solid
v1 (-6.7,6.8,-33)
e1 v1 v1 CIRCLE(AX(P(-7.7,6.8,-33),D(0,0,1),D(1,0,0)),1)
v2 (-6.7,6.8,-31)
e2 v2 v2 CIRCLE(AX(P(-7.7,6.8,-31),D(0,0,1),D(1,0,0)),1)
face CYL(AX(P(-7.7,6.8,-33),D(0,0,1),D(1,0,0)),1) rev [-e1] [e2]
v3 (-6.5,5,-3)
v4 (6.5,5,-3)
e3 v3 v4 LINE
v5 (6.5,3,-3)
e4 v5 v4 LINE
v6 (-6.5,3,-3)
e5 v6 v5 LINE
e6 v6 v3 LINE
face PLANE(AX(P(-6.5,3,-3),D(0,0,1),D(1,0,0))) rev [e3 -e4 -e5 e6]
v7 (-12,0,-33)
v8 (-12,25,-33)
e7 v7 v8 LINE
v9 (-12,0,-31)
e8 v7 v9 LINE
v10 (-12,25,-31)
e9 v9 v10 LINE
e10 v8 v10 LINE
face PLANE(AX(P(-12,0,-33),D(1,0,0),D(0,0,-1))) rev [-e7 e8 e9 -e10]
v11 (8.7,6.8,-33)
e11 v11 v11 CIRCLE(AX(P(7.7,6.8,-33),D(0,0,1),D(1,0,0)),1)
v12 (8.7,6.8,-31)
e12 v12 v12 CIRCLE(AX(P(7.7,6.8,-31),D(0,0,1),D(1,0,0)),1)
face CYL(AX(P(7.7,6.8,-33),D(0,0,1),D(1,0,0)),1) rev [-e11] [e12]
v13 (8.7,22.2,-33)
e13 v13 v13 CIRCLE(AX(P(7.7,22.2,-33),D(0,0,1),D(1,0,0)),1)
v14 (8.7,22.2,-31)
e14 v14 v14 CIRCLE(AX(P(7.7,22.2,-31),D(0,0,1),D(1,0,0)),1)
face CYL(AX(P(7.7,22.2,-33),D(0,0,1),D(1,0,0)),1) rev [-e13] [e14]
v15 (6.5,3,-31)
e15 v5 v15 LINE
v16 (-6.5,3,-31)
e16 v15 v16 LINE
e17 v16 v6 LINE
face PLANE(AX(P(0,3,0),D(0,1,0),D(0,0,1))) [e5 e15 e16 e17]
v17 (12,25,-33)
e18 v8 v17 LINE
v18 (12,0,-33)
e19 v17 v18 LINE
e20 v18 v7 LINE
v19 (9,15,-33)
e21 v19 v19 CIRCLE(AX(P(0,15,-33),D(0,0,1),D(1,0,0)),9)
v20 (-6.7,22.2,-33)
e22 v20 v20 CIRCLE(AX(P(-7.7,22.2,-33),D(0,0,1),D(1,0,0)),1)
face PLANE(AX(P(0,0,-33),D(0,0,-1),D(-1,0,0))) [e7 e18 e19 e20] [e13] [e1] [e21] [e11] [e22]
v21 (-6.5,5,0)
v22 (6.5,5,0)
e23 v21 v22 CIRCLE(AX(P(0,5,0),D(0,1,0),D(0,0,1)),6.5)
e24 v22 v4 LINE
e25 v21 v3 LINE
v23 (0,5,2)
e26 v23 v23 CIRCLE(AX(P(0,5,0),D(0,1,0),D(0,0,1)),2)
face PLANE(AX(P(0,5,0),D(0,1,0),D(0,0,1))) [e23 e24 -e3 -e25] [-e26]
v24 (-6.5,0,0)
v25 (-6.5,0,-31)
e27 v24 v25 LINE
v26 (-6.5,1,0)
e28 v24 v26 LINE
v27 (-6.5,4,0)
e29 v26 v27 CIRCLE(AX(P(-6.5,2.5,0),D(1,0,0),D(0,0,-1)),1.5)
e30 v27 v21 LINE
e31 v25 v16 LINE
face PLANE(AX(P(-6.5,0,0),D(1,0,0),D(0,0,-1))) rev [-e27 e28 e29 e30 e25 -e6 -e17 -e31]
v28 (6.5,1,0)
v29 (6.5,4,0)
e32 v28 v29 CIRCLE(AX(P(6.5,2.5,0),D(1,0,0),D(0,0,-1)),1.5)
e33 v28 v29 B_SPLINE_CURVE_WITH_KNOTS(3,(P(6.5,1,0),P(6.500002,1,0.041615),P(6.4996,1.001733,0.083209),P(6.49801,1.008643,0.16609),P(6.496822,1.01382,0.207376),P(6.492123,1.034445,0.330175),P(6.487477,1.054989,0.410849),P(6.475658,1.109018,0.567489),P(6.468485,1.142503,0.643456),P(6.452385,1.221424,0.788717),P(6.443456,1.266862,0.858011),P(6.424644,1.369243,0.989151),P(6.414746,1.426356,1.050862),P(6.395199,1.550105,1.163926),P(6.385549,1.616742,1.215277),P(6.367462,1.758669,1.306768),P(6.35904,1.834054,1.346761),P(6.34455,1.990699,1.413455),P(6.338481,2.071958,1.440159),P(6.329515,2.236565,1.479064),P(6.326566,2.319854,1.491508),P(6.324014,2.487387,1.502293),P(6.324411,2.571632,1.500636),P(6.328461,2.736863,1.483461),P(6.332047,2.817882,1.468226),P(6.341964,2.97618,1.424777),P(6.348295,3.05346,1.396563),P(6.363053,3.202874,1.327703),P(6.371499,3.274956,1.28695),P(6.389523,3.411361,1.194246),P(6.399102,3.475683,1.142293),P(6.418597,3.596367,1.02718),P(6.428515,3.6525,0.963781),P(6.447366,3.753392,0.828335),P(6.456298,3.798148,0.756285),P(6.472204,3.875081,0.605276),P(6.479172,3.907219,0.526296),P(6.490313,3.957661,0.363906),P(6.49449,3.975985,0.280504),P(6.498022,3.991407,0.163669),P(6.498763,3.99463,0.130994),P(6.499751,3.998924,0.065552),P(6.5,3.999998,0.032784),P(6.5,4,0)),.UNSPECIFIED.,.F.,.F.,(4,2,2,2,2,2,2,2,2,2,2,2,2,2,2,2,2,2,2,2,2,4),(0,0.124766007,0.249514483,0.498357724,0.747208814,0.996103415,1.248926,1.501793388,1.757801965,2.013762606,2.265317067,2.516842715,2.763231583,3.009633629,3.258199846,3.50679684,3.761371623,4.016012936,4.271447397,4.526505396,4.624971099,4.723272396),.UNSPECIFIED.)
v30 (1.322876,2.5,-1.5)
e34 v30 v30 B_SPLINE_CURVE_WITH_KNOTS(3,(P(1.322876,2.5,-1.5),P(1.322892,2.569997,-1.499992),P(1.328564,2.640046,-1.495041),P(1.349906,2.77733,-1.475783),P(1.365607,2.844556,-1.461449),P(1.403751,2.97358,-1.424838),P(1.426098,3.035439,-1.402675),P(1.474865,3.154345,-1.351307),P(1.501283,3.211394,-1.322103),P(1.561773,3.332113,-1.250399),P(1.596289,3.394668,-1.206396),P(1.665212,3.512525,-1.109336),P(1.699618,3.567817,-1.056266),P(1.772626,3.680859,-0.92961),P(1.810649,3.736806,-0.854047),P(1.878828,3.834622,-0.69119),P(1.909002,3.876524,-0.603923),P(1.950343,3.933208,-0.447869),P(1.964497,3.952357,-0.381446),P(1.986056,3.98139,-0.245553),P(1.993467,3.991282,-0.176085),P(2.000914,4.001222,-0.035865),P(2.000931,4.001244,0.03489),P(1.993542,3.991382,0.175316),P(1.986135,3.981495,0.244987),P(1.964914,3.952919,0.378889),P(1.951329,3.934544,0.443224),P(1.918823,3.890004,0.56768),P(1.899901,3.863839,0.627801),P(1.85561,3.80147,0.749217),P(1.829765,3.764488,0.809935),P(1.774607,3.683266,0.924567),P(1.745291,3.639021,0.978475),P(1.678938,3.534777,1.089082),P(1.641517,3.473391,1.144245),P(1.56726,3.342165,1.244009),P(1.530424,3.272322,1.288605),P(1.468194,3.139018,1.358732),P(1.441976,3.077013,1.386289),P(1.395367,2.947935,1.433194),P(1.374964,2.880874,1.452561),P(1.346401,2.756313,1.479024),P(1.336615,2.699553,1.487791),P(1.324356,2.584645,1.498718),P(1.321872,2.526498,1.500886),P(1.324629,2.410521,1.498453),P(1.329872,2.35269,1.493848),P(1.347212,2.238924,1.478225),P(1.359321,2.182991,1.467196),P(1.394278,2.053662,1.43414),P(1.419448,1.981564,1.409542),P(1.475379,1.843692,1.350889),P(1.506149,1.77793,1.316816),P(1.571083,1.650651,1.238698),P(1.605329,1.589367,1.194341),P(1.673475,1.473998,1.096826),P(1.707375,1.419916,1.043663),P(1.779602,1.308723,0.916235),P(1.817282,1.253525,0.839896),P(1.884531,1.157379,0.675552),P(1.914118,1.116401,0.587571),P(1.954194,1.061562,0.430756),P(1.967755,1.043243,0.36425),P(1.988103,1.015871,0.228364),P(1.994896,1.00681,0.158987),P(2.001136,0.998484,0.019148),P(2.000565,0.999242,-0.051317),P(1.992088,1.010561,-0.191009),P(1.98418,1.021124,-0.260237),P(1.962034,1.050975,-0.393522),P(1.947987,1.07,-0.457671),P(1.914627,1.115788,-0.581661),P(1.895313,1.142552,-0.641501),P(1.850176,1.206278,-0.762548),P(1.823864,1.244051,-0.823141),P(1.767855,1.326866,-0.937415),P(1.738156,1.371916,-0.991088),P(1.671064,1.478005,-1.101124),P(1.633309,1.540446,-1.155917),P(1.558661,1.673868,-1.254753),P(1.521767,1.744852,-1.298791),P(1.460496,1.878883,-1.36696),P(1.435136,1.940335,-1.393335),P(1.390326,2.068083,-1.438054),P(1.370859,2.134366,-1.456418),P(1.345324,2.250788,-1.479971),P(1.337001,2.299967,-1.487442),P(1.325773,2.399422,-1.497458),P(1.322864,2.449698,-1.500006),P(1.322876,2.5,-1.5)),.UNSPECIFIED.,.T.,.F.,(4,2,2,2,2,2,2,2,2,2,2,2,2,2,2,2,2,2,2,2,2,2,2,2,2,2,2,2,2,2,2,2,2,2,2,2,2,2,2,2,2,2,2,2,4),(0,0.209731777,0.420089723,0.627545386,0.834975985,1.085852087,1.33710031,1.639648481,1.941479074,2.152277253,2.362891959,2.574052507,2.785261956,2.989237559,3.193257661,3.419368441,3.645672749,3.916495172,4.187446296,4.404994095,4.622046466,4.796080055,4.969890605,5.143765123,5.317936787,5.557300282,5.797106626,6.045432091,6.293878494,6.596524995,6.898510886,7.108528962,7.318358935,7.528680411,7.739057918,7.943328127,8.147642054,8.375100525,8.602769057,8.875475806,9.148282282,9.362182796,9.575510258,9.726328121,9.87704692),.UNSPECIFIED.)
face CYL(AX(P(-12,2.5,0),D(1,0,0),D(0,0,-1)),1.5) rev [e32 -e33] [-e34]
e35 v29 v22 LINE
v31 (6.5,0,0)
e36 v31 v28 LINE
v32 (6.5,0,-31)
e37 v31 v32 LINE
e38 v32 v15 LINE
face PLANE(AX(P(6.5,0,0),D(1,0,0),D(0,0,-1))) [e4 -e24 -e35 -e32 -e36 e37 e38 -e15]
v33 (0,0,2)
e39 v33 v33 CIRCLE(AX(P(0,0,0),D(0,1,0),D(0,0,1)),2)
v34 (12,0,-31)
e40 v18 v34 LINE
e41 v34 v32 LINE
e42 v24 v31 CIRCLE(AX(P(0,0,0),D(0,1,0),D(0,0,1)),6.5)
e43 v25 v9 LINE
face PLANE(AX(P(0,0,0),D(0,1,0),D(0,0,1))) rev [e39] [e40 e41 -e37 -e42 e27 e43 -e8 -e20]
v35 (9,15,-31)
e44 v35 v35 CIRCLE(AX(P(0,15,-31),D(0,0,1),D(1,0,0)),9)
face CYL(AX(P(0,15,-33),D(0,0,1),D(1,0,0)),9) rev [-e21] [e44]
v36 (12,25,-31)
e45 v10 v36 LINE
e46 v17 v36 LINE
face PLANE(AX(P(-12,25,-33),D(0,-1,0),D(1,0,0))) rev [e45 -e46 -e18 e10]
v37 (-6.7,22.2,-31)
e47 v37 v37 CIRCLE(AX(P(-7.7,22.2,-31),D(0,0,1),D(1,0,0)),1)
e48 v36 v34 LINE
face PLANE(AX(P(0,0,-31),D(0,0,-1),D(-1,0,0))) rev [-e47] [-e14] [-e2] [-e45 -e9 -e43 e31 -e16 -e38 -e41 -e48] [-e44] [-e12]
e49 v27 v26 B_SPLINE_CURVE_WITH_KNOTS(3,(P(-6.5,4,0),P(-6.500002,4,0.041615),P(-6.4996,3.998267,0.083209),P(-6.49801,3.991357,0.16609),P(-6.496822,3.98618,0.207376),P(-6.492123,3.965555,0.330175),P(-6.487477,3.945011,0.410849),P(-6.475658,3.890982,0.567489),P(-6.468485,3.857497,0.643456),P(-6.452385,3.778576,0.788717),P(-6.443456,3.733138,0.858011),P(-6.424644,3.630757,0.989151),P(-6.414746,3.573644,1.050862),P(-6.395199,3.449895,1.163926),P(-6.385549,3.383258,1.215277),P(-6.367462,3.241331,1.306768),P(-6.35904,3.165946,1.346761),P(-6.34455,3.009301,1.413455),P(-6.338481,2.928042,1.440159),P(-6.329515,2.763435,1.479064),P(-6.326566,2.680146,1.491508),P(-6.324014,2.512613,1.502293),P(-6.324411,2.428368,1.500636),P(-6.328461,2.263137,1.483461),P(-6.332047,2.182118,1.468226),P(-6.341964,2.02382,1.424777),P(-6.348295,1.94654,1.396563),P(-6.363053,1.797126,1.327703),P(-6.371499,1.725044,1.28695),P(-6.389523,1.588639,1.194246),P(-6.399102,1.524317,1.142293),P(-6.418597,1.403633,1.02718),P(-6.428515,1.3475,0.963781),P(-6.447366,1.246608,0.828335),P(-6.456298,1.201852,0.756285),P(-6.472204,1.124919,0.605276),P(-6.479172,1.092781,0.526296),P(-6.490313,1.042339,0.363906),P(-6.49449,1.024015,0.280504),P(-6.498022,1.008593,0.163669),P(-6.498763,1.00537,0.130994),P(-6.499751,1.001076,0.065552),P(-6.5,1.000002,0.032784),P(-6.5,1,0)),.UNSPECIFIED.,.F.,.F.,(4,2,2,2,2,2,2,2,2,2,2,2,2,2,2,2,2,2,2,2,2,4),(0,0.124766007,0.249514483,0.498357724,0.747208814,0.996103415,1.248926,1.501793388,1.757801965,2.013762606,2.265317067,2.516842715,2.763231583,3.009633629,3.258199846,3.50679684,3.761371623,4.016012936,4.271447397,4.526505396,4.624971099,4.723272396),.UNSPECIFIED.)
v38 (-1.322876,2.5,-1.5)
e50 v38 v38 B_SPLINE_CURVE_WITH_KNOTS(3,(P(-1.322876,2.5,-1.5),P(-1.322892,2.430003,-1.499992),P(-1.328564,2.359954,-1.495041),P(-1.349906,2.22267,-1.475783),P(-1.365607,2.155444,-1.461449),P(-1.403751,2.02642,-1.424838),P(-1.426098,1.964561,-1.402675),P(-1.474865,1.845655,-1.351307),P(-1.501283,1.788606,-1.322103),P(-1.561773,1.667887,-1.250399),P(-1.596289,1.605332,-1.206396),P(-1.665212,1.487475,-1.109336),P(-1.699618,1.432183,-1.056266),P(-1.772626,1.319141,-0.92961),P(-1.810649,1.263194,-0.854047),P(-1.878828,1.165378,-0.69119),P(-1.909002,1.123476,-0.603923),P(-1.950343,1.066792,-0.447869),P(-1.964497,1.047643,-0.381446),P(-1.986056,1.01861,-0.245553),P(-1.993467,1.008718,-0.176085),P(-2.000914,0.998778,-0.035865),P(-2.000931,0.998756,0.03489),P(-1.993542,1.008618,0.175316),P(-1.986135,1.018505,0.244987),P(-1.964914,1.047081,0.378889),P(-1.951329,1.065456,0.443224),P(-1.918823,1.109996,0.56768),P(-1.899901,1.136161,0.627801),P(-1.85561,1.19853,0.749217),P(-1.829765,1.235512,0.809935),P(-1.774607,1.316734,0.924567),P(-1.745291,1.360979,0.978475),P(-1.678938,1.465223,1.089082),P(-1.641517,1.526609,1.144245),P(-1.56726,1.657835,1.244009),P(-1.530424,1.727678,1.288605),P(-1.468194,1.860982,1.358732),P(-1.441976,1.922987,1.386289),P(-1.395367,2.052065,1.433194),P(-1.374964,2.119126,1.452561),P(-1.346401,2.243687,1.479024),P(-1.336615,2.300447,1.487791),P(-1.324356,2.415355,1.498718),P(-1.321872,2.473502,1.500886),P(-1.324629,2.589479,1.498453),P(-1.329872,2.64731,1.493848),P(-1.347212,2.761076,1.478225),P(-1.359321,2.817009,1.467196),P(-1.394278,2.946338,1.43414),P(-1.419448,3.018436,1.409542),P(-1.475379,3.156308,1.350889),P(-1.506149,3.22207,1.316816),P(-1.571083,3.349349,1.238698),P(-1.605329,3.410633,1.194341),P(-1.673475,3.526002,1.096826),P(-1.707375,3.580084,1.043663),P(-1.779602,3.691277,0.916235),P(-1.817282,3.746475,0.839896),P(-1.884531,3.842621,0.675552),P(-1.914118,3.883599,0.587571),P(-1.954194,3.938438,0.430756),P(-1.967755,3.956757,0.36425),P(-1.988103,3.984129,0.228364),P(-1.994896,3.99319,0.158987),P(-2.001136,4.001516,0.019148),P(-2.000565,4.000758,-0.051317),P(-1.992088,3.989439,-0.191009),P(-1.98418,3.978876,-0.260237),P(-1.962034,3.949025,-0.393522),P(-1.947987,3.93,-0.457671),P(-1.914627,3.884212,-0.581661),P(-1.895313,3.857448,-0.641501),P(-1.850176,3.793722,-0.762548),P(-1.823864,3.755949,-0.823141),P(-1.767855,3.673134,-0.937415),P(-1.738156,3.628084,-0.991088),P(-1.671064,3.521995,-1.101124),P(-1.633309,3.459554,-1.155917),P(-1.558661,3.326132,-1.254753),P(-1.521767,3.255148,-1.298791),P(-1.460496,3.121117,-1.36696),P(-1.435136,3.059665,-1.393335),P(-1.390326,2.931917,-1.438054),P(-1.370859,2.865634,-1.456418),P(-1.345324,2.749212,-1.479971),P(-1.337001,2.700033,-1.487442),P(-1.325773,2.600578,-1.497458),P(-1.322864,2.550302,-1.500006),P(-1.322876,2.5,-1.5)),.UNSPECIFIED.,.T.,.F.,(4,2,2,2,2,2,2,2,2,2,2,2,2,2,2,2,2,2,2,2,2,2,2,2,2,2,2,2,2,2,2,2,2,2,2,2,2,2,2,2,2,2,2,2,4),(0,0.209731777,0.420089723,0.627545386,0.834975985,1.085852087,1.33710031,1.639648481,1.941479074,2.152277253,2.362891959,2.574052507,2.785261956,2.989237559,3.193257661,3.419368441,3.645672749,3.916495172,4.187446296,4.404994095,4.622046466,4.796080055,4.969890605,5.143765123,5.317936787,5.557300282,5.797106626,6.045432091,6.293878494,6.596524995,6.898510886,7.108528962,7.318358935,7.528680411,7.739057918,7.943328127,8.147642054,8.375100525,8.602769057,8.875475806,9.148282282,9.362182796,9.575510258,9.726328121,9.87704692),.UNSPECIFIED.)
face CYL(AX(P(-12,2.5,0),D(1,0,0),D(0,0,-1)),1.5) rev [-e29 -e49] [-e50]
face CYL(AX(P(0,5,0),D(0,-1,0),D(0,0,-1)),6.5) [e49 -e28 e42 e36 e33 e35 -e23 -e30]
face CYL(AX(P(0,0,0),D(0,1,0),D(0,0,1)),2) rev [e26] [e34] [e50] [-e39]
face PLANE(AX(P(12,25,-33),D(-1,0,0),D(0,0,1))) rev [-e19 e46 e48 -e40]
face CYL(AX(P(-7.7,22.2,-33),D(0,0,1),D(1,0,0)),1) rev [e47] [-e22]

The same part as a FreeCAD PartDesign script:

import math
import FreeCAD as App
import Part
import Sketcher

V = App.Vector
Q = App.Units.Quantity


def add_polygon(sketch, points):
    """Adds a closed chain of lines whose ends are joined by coincident constraints."""
    first, n = sketch.GeometryCount, len(points)
    for a, b in zip(points, points[1:] + points[:1]):
        sketch.addGeometry(Part.LineSegment(App.Vector(*a, 0), App.Vector(*b, 0)), False)
    for i in range(n):
        sketch.addConstraint(Sketcher.Constraint("Coincident", first + i, 2, first + (i + 1) % n, 1))

doc = App.newDocument("Part")
body = doc.addObject("PartDesign::Body", "Body")

sketch1 = body.newObject("Sketcher::SketchObject", "Sketch")
sketch1.AttachmentSupport = (doc.getObject("XZ_Plane"), [""])
sketch1.MapMode = "FlatFace"
sketch1.addGeometry(Part.Circle(V(0, 0, 0), V(0, 0, 1), 6), False)
sketch1.addConstraint([
    Sketcher.Constraint("Coincident", 0, 3, -1, 1),
    Sketcher.Constraint("Diameter", 0, Q("13 mm")),
])
pad1 = body.newObject("PartDesign::Pad", "Pad")
pad1.Profile = sketch1
pad1.Length = 5
pad1.Reversed = True

sketch2 = body.newObject("Sketcher::SketchObject", "Sketch001")
sketch2.AttachmentSupport = (doc.getObject("XZ_Plane"), [""])
sketch2.MapMode = "FlatFace"
sketch2.AttachmentOffset = App.Placement(V(0, 0, -5), App.Rotation())
sketch2.addGeometry(Part.Circle(V(0, 0, 0), V(0, 0, 1), 2), False)
sketch2.addConstraint([
    Sketcher.Constraint("Coincident", 0, 3, -1, 1),
    Sketcher.Constraint("Diameter", 0, Q("4 mm")),
])
pocket1 = body.newObject("PartDesign::Pocket", "Pocket")
pocket1.Profile = sketch2
pocket1.Type = "ThroughAll"
pocket1.Reversed = True

sketch3 = body.newObject("Sketcher::SketchObject", "Sketch002")
sketch3.AttachmentSupport = (doc.getObject("XZ_Plane"), [""])
sketch3.MapMode = "FlatFace"
sketch3.addGeometry([
    Part.LineSegment(V(6, 0, 0), V(6, -31, 0)),
    Part.LineSegment(V(6, -31, 0), V(-6, -31, 0)),
    Part.LineSegment(V(-6, -31, 0), V(-6, 0, 0)),
    Part.ArcOfCircle(Part.Circle(V(0, 0, 0), V(0, 0, 1), 6), math.radians(180), math.radians(360)),
], False)
sketch3.addConstraint([
    Sketcher.Constraint("Coincident", 0, 2, 1, 1),
    Sketcher.Constraint("Coincident", 1, 2, 2, 1),
    Sketcher.Constraint("Tangent", 2, 2, 3, 1),
    Sketcher.Constraint("Tangent", 3, 2, 0, 1),
    Sketcher.Constraint("Vertical", 0),
    Sketcher.Constraint("Horizontal", 1),
    Sketcher.Constraint("Vertical", 2),
    Sketcher.Constraint("Coincident", 3, 3, -1, 1),
    Sketcher.Constraint("Radius", 3, Q("6.5 mm")),
    Sketcher.Constraint("DistanceY", 0, 2, 0, 1, Q("31 mm")),
])
pad2 = body.newObject("PartDesign::Pad", "Pad001")
pad2.Profile = sketch3
pad2.Length = 5
pad2.Reversed = True

sketch4 = body.newObject("Sketcher::SketchObject", "Sketch003")
sketch4.AttachmentSupport = (doc.getObject("XY_Plane"), [""])
sketch4.MapMode = "FlatFace"
sketch4.AttachmentOffset = App.Placement(V(0, 0, -31), App.Rotation())
add_polygon(sketch4, [(-12, 0), (-12, 25), (12, 25), (12, 0)])
sketch4.addConstraint([
    Sketcher.Constraint("Vertical", 0),
    Sketcher.Constraint("Horizontal", 1),
    Sketcher.Constraint("Vertical", 2),
    Sketcher.Constraint("Horizontal", 3),
    Sketcher.Constraint("Symmetric", 2, 2, 3, 2, -1, 1),
    Sketcher.Constraint("DistanceX", 1, 1, 1, 2, Q("24 mm")),
    Sketcher.Constraint("DistanceY", 0, 1, 0, 2, Q("25 mm")),
])
pad3 = body.newObject("PartDesign::Pad", "Pad002")
pad3.Profile = sketch4
pad3.Length = 2
pad3.Reversed = True

sketch5 = body.newObject("Sketcher::SketchObject", "Sketch004")
sketch5.AttachmentSupport = (doc.getObject("XY_Plane"), [""])
sketch5.MapMode = "FlatFace"
sketch5.AttachmentOffset = App.Placement(V(0, 0, -31), App.Rotation())
sketch5.addGeometry([
    Part.Circle(V(0, 15, 0), V(0, 0, 1), 9),
    Part.Circle(V(7.7, 22.2, 0), V(0, 0, 1), 1),
    Part.Circle(V(-7.7, 22.2, 0), V(0, 0, 1), 1),
    Part.Circle(V(-7.7, 6.8, 0), V(0, 0, 1), 1),
    Part.Circle(V(7.7, 6.8, 0), V(0, 0, 1), 1),
], False)
sketch5.addConstraint([
    Sketcher.Constraint("Equal", 1, 2),
    Sketcher.Constraint("Equal", 2, 3),
    Sketcher.Constraint("Equal", 3, 4),
    Sketcher.Constraint("Symmetric", 1, 3, 2, 3, -2),
    Sketcher.Constraint("Symmetric", 3, 3, 4, 3, -2),
    Sketcher.Constraint("PointOnObject", 0, 3, -2),
    Sketcher.Constraint("Vertical", 2, 3, 3, 3),
    Sketcher.Constraint("Diameter", 0, Q("18 mm")),
    Sketcher.Constraint("Diameter", 1, Q("2 mm")),
    Sketcher.Constraint("DistanceY", -1, 1, 0, 3, Q("15 mm")),
    Sketcher.Constraint("DistanceX", -1, 1, 1, 3, Q("7.7 mm")),
    Sketcher.Constraint("DistanceY", -1, 1, 1, 3, Q("22.2 mm")),
    Sketcher.Constraint("DistanceY", -1, 1, 3, 3, Q("6.8 mm")),
])
pocket2 = body.newObject("PartDesign::Pocket", "Pocket001")
pocket2.Profile = sketch5
pocket2.Length = 2

sketch6 = body.newObject("Sketcher::SketchObject", "Sketch005")
sketch6.AttachmentSupport = (doc.getObject("YZ_Plane"), [""])
sketch6.MapMode = "FlatFace"
sketch6.addGeometry(Part.Circle(V(2.5, 0, 0), V(0, 0, 1), 1.5), False)
sketch6.addConstraint([
    Sketcher.Constraint("PointOnObject", 0, 3, -1),
    Sketcher.Constraint("Diameter", 0, Q("3 mm")),
    Sketcher.Constraint("DistanceX", -1, 1, 0, 3, Q("2.5 mm")),
])
pocket3 = body.newObject("PartDesign::Pocket", "Pocket002")
pocket3.Profile = sketch6
pocket3.Type = "ThroughAll"
pocket3.Midplane = True

sketch7 = body.newObject("Sketcher::SketchObject", "Sketch006")
sketch7.AttachmentSupport = (doc.getObject("XZ_Plane"), [""])
sketch7.MapMode = "FlatFace"
sketch7.AttachmentOffset = App.Placement(V(0, 0, -5), App.Rotation())
add_polygon(sketch7, [(-6, -31), (-6, -3), (6, -3), (6, -31)])
sketch7.addConstraint([
    Sketcher.Constraint("Vertical", 0),
    Sketcher.Constraint("Horizontal", 1),
    Sketcher.Constraint("Vertical", 2),
    Sketcher.Constraint("Horizontal", 3),
    Sketcher.Constraint("DistanceX", 1, 1, 1, 2, Q("13 mm")),
    Sketcher.Constraint("DistanceY", 0, 1, 0, 2, Q("28 mm")),
    Sketcher.Constraint("DistanceY", 0, 2, -1, 1, Q("3 mm")),
    Sketcher.Constraint("DistanceX", 0, 2, -1, 1, Q("6.5 mm")),
])
pocket4 = body.newObject("PartDesign::Pocket", "Pocket003")
pocket4.Profile = sketch7
pocket4.Length = 2
pocket4.Reversed = True

doc.recompute()
